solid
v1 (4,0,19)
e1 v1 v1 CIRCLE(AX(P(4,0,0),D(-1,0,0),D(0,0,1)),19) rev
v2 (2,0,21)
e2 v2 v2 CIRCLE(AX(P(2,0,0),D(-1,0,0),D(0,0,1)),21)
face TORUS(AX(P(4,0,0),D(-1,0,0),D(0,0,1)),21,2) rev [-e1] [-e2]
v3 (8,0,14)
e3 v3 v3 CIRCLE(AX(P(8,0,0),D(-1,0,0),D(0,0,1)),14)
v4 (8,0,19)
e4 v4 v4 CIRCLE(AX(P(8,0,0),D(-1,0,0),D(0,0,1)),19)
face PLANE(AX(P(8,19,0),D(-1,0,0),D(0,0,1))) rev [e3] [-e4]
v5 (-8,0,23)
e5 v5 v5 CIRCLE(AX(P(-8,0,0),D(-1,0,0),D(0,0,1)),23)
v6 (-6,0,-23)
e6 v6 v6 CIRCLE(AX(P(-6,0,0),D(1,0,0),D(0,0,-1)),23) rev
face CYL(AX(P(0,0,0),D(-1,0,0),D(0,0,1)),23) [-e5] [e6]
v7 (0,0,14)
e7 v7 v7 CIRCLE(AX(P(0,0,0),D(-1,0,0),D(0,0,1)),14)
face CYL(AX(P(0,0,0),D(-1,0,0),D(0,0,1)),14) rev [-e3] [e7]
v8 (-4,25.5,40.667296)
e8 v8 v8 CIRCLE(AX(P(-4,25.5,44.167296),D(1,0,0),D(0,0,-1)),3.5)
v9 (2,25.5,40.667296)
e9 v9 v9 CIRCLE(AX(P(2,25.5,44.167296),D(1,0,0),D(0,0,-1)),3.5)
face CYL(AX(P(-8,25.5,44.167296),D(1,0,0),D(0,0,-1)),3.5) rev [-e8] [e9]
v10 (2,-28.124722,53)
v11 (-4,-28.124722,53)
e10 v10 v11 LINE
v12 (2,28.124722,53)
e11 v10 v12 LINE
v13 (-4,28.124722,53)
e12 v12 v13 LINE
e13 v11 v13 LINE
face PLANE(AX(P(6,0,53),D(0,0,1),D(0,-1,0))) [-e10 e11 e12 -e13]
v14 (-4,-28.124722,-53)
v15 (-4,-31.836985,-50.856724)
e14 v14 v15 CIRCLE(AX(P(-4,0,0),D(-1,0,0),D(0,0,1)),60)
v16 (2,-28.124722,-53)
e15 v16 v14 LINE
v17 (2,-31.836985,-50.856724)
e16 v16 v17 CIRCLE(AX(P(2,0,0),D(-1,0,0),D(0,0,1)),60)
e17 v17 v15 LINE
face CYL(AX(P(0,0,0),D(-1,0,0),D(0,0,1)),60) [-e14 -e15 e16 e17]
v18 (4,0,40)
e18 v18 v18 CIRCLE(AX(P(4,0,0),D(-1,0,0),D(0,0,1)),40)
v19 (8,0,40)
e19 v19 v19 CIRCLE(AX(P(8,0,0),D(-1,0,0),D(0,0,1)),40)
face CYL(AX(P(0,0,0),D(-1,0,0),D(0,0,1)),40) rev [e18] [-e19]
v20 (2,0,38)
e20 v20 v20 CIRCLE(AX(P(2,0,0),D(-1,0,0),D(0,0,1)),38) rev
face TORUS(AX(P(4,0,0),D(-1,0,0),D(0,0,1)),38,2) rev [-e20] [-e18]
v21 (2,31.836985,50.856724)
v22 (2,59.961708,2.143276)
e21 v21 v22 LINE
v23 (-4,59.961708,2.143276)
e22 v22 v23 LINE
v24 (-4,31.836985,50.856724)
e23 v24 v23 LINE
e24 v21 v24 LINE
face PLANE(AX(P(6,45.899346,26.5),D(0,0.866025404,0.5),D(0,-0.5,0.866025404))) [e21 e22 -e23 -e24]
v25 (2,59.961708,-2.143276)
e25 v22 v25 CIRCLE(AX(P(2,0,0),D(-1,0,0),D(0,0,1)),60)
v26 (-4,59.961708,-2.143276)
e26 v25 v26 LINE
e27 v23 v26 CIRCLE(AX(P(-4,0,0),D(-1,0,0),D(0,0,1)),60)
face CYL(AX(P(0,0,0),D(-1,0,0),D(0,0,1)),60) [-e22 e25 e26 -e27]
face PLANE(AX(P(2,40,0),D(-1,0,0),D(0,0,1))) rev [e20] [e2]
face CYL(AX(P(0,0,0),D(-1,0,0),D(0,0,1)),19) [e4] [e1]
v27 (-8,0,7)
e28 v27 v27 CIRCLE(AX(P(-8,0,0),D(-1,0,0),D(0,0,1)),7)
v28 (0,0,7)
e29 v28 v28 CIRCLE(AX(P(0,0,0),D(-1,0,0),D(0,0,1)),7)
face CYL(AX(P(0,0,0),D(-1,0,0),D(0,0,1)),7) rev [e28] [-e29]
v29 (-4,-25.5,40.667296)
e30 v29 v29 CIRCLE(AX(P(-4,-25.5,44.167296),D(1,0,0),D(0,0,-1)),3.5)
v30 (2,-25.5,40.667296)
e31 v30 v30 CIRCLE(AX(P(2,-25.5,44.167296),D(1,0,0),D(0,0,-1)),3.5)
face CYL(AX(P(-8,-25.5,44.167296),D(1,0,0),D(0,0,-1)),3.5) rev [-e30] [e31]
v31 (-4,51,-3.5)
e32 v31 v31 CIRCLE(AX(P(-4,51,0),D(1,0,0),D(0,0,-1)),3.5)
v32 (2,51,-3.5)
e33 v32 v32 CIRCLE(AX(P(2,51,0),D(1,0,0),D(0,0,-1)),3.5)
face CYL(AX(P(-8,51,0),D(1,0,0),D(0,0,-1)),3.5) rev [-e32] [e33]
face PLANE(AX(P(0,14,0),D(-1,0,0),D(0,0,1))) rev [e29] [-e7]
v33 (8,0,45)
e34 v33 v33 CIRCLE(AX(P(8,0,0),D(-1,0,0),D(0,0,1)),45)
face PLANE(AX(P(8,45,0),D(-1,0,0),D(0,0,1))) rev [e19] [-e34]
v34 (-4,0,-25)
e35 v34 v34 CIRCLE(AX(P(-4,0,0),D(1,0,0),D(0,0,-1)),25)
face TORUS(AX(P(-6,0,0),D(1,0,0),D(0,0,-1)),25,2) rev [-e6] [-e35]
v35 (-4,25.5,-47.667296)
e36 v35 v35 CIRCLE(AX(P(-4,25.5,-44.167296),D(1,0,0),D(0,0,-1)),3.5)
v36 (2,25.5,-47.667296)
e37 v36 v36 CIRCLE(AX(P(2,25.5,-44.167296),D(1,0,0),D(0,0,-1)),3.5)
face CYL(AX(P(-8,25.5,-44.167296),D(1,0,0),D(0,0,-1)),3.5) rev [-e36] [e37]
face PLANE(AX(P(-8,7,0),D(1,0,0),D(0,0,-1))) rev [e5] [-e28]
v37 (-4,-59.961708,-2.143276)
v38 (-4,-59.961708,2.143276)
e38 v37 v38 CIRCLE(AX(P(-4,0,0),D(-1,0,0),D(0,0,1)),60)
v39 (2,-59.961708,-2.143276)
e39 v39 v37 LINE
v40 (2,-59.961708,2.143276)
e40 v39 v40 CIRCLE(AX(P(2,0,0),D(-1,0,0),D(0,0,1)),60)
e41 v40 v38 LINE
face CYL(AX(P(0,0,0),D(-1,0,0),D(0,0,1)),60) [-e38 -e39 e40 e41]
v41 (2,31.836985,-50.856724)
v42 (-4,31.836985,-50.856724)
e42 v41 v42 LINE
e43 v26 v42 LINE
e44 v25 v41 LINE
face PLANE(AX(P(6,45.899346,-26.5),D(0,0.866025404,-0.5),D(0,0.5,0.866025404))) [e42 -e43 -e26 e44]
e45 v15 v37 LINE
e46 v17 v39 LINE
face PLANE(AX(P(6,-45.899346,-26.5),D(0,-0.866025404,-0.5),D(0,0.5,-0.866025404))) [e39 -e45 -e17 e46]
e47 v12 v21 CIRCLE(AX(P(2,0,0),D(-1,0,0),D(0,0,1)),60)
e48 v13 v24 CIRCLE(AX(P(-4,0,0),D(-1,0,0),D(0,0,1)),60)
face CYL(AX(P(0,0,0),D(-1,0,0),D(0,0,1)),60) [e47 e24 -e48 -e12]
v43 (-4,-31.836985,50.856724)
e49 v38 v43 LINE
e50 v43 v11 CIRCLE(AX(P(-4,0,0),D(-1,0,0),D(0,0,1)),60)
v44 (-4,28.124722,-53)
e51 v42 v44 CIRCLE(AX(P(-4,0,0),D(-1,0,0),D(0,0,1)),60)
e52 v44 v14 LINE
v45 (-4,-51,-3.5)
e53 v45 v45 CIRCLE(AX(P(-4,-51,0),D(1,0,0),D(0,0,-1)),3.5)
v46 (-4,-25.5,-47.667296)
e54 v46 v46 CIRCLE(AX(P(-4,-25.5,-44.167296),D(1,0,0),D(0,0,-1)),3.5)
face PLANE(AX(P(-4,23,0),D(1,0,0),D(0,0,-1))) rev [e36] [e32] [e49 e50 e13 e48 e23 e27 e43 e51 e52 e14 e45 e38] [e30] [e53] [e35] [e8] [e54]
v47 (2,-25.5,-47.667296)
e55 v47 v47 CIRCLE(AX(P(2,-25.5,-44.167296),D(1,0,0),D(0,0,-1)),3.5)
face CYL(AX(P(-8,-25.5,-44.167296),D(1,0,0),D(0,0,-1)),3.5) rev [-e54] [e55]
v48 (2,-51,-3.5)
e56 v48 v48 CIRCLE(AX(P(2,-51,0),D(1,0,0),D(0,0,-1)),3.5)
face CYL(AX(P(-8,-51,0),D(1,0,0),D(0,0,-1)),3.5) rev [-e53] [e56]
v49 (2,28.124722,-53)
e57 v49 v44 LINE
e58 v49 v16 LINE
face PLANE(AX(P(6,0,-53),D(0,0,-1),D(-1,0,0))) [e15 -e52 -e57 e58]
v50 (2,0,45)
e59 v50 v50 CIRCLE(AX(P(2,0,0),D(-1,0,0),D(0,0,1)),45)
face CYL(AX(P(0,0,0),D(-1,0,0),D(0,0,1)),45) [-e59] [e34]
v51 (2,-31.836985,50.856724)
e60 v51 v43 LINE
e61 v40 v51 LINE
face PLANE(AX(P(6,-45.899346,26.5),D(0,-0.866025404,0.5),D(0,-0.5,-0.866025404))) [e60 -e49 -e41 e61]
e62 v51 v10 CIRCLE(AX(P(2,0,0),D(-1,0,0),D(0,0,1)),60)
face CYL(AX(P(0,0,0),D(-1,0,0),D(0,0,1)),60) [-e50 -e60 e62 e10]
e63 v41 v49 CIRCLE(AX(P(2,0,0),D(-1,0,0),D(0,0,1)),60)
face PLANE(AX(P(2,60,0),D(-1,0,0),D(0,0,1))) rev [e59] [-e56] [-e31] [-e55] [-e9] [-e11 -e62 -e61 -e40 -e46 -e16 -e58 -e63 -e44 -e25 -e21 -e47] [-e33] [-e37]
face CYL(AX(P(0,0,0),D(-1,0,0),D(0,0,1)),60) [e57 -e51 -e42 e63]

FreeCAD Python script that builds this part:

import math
import FreeCAD as App
import Part
import Sketcher
from FreeCAD import Vector
Q = App.Units.Quantity


def edges_at(feature, points):
    """Names of the edges that pass closest to the given points."""
    edges = feature.Shape.Edges
    near = lambda p: min(range(len(edges)), key=lambda i: edges[i].distToShape(Part.Vertex(*p))[0])
    return sorted({f"Edge{near(p) + 1}" for p in points})


def add_polygon(sketch, points):
    """Adds a closed chain of lines whose ends are joined by coincident constraints."""
    first, n = sketch.GeometryCount, len(points)
    for a, b in zip(points, points[1:] + points[:1]):
        sketch.addGeometry(Part.LineSegment(App.Vector(*a, 0), App.Vector(*b, 0)), False)
    for i in range(n):
        sketch.addConstraint(Sketcher.Constraint("Coincident", first + i, 2, first + (i + 1) % n, 1))

doc = App.newDocument("Part")
params = doc.addObject("Spreadsheet::Sheet", "Params")
for row, (alias, value) in enumerate([
    ("sketch1_width", "8 mm"),
    ("sketch1_width2", "6 mm"),
    ("sketch1_height", "16 mm"),
    ("sketch1_height2", "7 mm"),
    ("sketch1_height3", "5 mm"),
    ("revolution_angle", "360 deg"),
    ("sketch2_diameter", "7 mm"),
    ("pocket1_length", "10 mm"),
    ("fillet_radius", "2 mm"),
    ("sketch3_radius", "60 mm"),
    ("pocket2_length", "10 mm"),
], start=1):
    params.set(f"A{row}", alias)
    params.set(f"B{row}", "=" + value)
    params.setAlias(f"B{row}", alias)

body = doc.addObject("PartDesign::Body", "Body")

# Sketch on XY plane
sketch1 = body.newObject("Sketcher::SketchObject", "Sketch")
sketch1.AttachmentSupport = (doc.getObject("XY_Plane"), [""])
sketch1.MapMode = "FlatFace"
add_polygon(sketch1, [(-8, 23), (-8, 7), (0, 7), (0, 14), (8, 14), (8, 19), (2, 19), (2, 40), (8, 40), (8, 45), (2, 45), (2, 60), (-4, 60), (-4, 23)])  # lines 0-13
sketch1.addConstraint([
    Sketcher.Constraint("Vertical", 0),
    Sketcher.Constraint("Horizontal", 1),
    Sketcher.Constraint("Vertical", 2),
    Sketcher.Constraint("Horizontal", 3),
    Sketcher.Constraint("Vertical", 4),
    Sketcher.Constraint("Horizontal", 5),
    Sketcher.Constraint("Vertical", 6),
    Sketcher.Constraint("Horizontal", 7),
    Sketcher.Constraint("Vertical", 8),
    Sketcher.Constraint("Horizontal", 9),
    Sketcher.Constraint("Vertical", 10),
    Sketcher.Constraint("Horizontal", 11),
    Sketcher.Constraint("Vertical", 12),
    Sketcher.Constraint("Horizontal", 13),
    Sketcher.Constraint("PointOnObject", 1, 2, -2),
    Sketcher.Constraint("Vertical", 4, 2, 7, 2),
    Sketcher.Constraint("Vertical", 6, 2, 9, 2),
    Sketcher.Constraint("Equal", 1, 3),
    Sketcher.Constraint("Equal", 9, 11),
    Sketcher.Constraint("Equal", 4, 8),
    Sketcher.Constraint("DistanceX", 1, 1, 1, 2, Q("8 mm")),
    Sketcher.Constraint("DistanceX", 5, 2, 5, 1, Q("6 mm")),
    Sketcher.Constraint("DistanceY", 0, 2, 0, 1, Q("16 mm")),
    Sketcher.Constraint("DistanceY", 2, 1, 2, 2, Q("7 mm")),
    Sketcher.Constraint("DistanceY", 4, 1, 4, 2, Q("5 mm")),
    Sketcher.Constraint("DistanceY", 6, 1, 6, 2, Q("21 mm")),
    Sketcher.Constraint("DistanceY", 10, 1, 10, 2, Q("15 mm")),
    Sketcher.Constraint("DistanceY", -1, 1, 0, 2, Q("7 mm")),
])
sketch1.setExpression("Constraints[34]", "Params.sketch1_width")
sketch1.setExpression("Constraints[35]", "Params.sketch1_width2")
sketch1.setExpression("Constraints[36]", "Params.sketch1_height")
sketch1.setExpression("Constraints[37]", "Params.sketch1_height2")
sketch1.setExpression("Constraints[38]", "Params.sketch1_height3")
revolution = body.newObject("PartDesign::Revolution", "Revolution")
revolution.Profile = sketch1
revolution.ReferenceAxis = (sketch1, ["H_Axis"])
revolution.setExpression("Angle", "Params.revolution_angle")

# Sketch on YZ plane
sketch2 = body.newObject("Sketcher::SketchObject", "Sketch001")
sketch2.AttachmentSupport = (doc.getObject("YZ_Plane"), [""])
sketch2.MapMode = "FlatFace"
sketch2.AttachmentOffset = App.Placement(Vector(0, 0, 2), App.Rotation())
sketch2.addGeometry([
    Part.Circle(Vector(51, 0, 0), Vector(0, 0, 1), 3.5),  # 0
    Part.Circle(Vector(25.5, -44.167296, 0), Vector(0, 0, 1), 3.5),  # 1
    Part.Circle(Vector(-25.5, -44.167296, 0), Vector(0, 0, 1), 3.5),  # 2
    Part.Circle(Vector(-51, 0, 0), Vector(0, 0, 1), 3.5),  # 3
    Part.Circle(Vector(-25.5, 44.167296, 0), Vector(0, 0, 1), 3.5),  # 4
    Part.Circle(Vector(25.5, 44.167296, 0), Vector(0, 0, 1), 3.5),  # 5
], False)
sketch2.addConstraint([
    Sketcher.Constraint("Equal", 0, 1),
    Sketcher.Constraint("Equal", 1, 2),
    Sketcher.Constraint("Equal", 2, 3),
    Sketcher.Constraint("Equal", 3, 4),
    Sketcher.Constraint("Equal", 4, 5),
    Sketcher.Constraint("Symmetric", 0, 3, 3, 3, -1, 1),
    Sketcher.Constraint("Symmetric", 1, 3, 4, 3, -1, 1),
    Sketcher.Constraint("Symmetric", 2, 3, 5, 3, -1, 1),
    Sketcher.Constraint("Symmetric", 1, 3, 2, 3, -2),
    Sketcher.Constraint("PointOnObject", 0, 3, -1),
    Sketcher.Constraint("Diameter", 0, Q("7 mm")),
    Sketcher.Constraint("DistanceX", -1, 1, 0, 3, Q("51 mm")),
    Sketcher.Constraint("DistanceX", 2, 3, 1, 3, Q("51 mm")),
    Sketcher.Constraint("DistanceY", 2, 3, 4, 3, Q("88.334591 mm")),
])
sketch2.setExpression("Constraints[10]", "Params.sketch2_diameter")
pocket1 = body.newObject("PartDesign::Pocket", "Pocket")
pocket1.Profile = sketch2
pocket1.setExpression("Length", "Params.pocket1_length")
doc.recompute()

fillet = body.newObject("PartDesign::Fillet", "Fillet")
fillet.Base = (pocket1, edges_at(pocket1, [(2, 0, -19), (2, 0, -40), (-4, 0, -23)]))
fillet.setExpression("Radius", "Params.fillet_radius")

# Sketch on YZ plane
sketch3 = body.newObject("Sketcher::SketchObject", "Sketch002")
sketch3.AttachmentSupport = (doc.getObject("YZ_Plane"), [""])
sketch3.MapMode = "FlatFace"
sketch3.AttachmentOffset = App.Placement(Vector(0, 0, 6), App.Rotation())
sketch3.addGeometry([
    Part.ArcOfCircle(Part.Circle(Vector(0, 0, 0), Vector(0, 0, 1), 60), math.radians(-57.952887), math.radians(-2.047113)),  # 0
    Part.LineSegment(Vector(31.836985, -50.856724, 0), Vector(59.961708, -2.143276, 0)),  # 1
    Part.ArcOfCircle(Part.Circle(Vector(0, 0, 0), Vector(0, 0, 1), 60), math.radians(2.047113), math.radians(57.952887)),  # 2
    Part.LineSegment(Vector(59.961708, 2.143276, 0), Vector(31.836985, 50.856724, 0)),  # 3
    Part.ArcOfCircle(Part.Circle(Vector(0, 0, 0), Vector(0, 0, 1), 60), math.radians(62.047113), math.radians(90)),  # 4
    Part.LineSegment(Vector(28.124722, 53, 0), Vector(-28.124722, 53, 0)),  # 5
    Part.ArcOfCircle(Part.Circle(Vector(0, 0, 0), Vector(0, 0, 1), 60), math.radians(90), math.radians(117.952887)),  # 6
    Part.LineSegment(Vector(-31.836985, 50.856724, 0), Vector(-59.961708, 2.143276, 0)),  # 7
    Part.ArcOfCircle(Part.Circle(Vector(0, 0, 0), Vector(0, 0, 1), 60), math.radians(122.047113), math.radians(177.952887)),  # 8
    Part.LineSegment(Vector(-59.961708, -2.143276, 0), Vector(-31.836985, -50.856724, 0)),  # 9
    Part.ArcOfCircle(Part.Circle(Vector(0, 0, 0), Vector(0, 0, 1), 60), math.radians(-177.952887), math.radians(-122.047113)),  # 10
    Part.LineSegment(Vector(-28.124722, -53, 0), Vector(28.124722, -53, 0)),  # 11
    Part.ArcOfCircle(Part.Circle(Vector(0, 0, 0), Vector(0, 0, 1), 60), math.radians(-117.952887), math.radians(-62.047113)),  # 12
], False)
sketch3.addConstraint([
    Sketcher.Constraint("Coincident", 0, 1, 1, 1),
    Sketcher.Constraint("Coincident", 1, 2, 0, 2),
    Sketcher.Constraint("Coincident", 2, 1, 3, 1),
    Sketcher.Constraint("Coincident", 3, 2, 2, 2),
    Sketcher.Constraint("Coincident", 4, 1, 5, 1),
    Sketcher.Constraint("Coincident", 5, 2, 6, 2),
    Sketcher.Constraint("Tangent", 6, 1, 4, 2),
    Sketcher.Constraint("Coincident", 7, 1, 8, 1),
    Sketcher.Constraint("Coincident", 8, 2, 7, 2),
    Sketcher.Constraint("Coincident", 9, 1, 10, 1),
    Sketcher.Constraint("Coincident", 10, 2, 9, 2),
    Sketcher.Constraint("Coincident", 11, 1, 12, 1),
    Sketcher.Constraint("Coincident", 12, 2, 11, 2),
    Sketcher.Constraint("Horizontal", 5),
    Sketcher.Constraint("Horizontal", 11),
    Sketcher.Constraint("Coincident", 0, 3, -1, 1),
    Sketcher.Constraint("Coincident", 2, 3, -1, 1),
    Sketcher.Constraint("Coincident", 4, 3, -1, 1),
    Sketcher.Constraint("Coincident", 8, 3, -1, 1),
    Sketcher.Constraint("Coincident", 10, 3, -1, 1),
    Sketcher.Constraint("Coincident", 12, 3, -1, 1),
    Sketcher.Constraint("Equal", 0, 2),
    Sketcher.Constraint("Equal", 2, 4),
    Sketcher.Constraint("Equal", 4, 6),
    Sketcher.Constraint("Equal", 6, 8),
    Sketcher.Constraint("Equal", 8, 10),
    Sketcher.Constraint("Equal", 10, 12),
    Sketcher.Constraint("PointOnObject", 6, 1, -2),
    Sketcher.Constraint("Parallel", 1, 7),
    Sketcher.Constraint("Parallel", 3, 9),
    Sketcher.Constraint("Horizontal", 3, 2, 7, 1),
    Sketcher.Constraint("Horizontal", 2, 1, 8, 2),
    Sketcher.Constraint("Horizontal", 1, 2, 9, 1),
    Sketcher.Constraint("Vertical", 1, 2, 2, 1),
    Sketcher.Constraint("Vertical", 5, 2, 11, 1),
    Sketcher.Constraint("Radius", 0, Q("60 mm")),
    Sketcher.Constraint("Angle", 1, Q("60 deg")),
    Sketcher.Constraint("DistanceY", -1, 1, 4, 1, Q("53 mm")),
    Sketcher.Constraint("DistanceY", 1, 2, 3, 2, Q("53 mm")),
])
sketch3.setExpression("Constraints[35]", "Params.sketch3_radius")
pocket2 = body.newObject("PartDesign::Pocket", "Pocket001")
pocket2.Profile = sketch3
pocket2.setExpression("Length", "Params.pocket2_length")

doc.recompute()
